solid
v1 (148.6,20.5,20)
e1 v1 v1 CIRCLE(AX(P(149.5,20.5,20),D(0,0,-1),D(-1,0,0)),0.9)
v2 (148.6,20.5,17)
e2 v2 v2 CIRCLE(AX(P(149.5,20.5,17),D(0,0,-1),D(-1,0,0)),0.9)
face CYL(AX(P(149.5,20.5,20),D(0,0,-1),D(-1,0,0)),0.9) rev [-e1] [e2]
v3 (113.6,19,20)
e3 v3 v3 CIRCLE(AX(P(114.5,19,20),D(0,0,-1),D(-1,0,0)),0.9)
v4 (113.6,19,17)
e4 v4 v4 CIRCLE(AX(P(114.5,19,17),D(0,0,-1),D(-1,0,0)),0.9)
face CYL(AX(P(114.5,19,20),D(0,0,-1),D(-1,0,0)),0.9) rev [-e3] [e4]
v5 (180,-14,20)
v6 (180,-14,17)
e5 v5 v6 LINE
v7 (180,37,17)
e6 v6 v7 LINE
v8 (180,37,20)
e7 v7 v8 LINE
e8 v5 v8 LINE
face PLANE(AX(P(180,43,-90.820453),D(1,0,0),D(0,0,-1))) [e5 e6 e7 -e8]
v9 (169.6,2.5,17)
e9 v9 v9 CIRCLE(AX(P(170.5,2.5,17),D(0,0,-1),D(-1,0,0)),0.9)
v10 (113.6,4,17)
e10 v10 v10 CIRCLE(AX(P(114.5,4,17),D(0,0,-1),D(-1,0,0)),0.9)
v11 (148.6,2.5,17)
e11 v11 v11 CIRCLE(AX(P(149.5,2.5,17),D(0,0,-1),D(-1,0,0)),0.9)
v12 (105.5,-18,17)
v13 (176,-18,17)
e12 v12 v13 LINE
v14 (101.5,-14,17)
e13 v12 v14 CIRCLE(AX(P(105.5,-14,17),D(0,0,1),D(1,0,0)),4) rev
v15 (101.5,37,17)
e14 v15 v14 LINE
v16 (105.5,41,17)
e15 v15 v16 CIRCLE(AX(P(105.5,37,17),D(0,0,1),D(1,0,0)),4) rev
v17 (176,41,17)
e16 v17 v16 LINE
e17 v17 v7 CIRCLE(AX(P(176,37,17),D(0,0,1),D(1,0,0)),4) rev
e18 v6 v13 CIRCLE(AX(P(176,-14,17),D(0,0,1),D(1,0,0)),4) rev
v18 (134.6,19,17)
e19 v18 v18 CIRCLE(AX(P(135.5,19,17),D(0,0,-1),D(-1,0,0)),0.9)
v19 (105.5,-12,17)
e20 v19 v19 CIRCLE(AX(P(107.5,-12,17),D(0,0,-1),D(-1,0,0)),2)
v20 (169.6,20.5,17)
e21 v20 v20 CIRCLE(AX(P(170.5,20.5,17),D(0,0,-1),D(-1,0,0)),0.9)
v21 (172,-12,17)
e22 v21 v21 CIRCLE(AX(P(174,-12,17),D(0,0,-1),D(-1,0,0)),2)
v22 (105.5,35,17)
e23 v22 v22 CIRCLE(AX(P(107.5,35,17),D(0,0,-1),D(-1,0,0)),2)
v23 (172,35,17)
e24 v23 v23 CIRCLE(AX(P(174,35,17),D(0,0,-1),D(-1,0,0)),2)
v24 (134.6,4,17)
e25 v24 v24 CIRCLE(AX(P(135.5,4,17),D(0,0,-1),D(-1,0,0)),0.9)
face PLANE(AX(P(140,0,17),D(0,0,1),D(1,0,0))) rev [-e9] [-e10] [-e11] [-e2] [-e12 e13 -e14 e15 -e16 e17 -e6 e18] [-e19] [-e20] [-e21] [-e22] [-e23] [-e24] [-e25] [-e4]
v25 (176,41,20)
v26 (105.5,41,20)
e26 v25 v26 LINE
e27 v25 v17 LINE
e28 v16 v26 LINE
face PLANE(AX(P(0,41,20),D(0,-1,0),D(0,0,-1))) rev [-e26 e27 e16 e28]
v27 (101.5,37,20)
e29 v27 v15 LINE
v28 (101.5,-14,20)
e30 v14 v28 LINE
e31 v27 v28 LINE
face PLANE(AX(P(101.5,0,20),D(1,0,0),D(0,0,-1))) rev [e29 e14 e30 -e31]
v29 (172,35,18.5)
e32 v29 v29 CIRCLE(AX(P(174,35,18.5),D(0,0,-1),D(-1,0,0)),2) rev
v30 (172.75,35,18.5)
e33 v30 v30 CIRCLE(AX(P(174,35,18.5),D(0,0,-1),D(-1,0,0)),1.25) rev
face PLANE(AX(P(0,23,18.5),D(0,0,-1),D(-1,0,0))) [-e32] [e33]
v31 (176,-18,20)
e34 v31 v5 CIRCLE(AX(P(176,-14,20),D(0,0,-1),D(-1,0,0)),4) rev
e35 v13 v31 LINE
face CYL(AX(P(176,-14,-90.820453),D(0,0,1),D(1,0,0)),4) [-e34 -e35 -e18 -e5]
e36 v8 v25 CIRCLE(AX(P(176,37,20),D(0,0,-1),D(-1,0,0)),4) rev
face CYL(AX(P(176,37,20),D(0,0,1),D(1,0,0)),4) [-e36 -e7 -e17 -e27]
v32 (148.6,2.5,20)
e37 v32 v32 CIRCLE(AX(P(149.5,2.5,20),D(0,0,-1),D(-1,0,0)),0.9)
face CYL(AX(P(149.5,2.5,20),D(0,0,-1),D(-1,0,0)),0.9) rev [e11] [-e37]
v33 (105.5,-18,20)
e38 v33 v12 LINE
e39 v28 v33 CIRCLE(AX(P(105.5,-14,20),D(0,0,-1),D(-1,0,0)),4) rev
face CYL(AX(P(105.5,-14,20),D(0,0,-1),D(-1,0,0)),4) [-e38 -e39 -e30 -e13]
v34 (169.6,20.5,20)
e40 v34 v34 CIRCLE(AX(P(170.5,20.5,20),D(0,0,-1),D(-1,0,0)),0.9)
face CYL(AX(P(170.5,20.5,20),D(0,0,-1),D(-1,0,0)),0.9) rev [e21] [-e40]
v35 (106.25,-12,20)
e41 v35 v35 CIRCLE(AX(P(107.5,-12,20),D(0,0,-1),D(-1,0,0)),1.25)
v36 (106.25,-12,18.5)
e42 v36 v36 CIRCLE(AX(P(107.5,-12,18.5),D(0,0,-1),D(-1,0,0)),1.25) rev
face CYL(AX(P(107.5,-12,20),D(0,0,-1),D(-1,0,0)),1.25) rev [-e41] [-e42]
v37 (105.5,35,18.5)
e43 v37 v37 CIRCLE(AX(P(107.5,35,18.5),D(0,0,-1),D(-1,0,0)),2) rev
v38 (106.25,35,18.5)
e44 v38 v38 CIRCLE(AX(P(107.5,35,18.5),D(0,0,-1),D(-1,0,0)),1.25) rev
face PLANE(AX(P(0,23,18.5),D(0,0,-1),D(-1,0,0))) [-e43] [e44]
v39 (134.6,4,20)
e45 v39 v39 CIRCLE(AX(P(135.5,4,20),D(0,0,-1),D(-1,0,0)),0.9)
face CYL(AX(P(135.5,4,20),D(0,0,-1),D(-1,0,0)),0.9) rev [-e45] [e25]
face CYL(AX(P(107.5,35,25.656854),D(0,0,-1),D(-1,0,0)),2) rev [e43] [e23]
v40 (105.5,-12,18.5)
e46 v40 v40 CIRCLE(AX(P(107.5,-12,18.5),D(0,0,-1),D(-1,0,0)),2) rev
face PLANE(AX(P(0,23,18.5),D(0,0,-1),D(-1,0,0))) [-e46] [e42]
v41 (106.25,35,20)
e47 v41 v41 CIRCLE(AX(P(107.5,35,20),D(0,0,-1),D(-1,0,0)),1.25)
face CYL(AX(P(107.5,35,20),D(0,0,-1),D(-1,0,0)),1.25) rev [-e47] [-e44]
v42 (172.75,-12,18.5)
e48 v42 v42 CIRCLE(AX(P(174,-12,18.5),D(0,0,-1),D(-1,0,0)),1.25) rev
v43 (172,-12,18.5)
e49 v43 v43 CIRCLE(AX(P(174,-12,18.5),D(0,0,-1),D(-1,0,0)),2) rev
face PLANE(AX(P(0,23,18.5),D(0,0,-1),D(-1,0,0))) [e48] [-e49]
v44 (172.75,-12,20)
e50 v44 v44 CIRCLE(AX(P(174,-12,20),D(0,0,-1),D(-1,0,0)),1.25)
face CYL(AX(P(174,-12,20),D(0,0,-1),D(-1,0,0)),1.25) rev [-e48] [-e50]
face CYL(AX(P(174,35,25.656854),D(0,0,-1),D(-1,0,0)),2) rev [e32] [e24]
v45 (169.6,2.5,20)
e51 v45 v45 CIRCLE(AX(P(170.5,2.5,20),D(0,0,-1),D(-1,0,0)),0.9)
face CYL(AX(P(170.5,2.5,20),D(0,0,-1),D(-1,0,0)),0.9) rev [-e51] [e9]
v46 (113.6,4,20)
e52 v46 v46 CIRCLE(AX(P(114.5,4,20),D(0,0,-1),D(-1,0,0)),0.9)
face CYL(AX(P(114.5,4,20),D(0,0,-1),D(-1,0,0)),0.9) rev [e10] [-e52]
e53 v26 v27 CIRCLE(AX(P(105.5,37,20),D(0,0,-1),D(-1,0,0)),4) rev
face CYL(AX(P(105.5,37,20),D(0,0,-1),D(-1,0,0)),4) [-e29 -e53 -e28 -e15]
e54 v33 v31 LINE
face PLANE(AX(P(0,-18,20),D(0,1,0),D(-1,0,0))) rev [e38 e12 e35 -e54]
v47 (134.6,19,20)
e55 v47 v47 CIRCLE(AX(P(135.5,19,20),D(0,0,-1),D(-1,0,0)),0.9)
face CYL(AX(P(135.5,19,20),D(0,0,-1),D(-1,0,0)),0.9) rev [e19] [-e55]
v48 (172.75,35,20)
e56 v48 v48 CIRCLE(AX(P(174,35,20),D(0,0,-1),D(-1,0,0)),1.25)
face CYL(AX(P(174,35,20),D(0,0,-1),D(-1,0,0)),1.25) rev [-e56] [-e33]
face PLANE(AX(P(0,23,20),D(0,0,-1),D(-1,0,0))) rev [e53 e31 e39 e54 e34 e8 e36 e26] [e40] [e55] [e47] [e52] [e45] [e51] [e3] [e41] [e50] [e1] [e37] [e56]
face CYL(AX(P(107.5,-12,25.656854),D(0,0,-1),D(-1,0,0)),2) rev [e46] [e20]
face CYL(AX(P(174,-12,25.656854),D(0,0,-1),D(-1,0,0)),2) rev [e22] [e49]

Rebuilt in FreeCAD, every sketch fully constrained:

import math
import FreeCAD as App
import Part
import Sketcher

V = App.Vector
Q = App.Units.Quantity


def edges_at(feature, points):
    """Names of the edges that pass closest to the given points."""
    edges = feature.Shape.Edges
    near = lambda p: min(range(len(edges)), key=lambda i: edges[i].distToShape(Part.Vertex(*p))[0])
    return sorted({f"Edge{near(p) + 1}" for p in points})


def add_polygon(sketch, points):
    """Adds a closed chain of lines whose ends are joined by coincident constraints."""
    first, n = sketch.GeometryCount, len(points)
    for a, b in zip(points, points[1:] + points[:1]):
        sketch.addGeometry(Part.LineSegment(App.Vector(*a, 0), App.Vector(*b, 0)), False)
    for i in range(n):
        sketch.addConstraint(Sketcher.Constraint("Coincident", first + i, 2, first + (i + 1) % n, 1))

doc = App.newDocument("Part")
params = doc.addObject("Spreadsheet::Sheet", "Params")
for row, (alias, value) in enumerate([
    ("sketch1_width", "170 mm"),
    ("sketch1_height", "20 mm"),
    ("pad1_length", "23 mm"),
    ("sketch2_radius", "1.6 mm"),
    ("sketch3_width", "13 mm"),
    ("sketch3_height", "17 mm"),
    ("pocket2_length", "30 mm"),
    ("sketch4_radius", "7.5 mm"),
    ("sketch4_width", "20 mm"),
    ("sketch4_width2", "170 mm"),
    ("sketch4_width3", "15 mm"),
    ("sketch4_height", "7 mm"),
    ("sketch5_height", "63 mm"),
    ("sketch5_width", "87.5 mm"),
    ("pad2_length", "3 mm"),
    ("sketch6_diameter", "2.5 mm"),
    ("sketch7_diameter", "4 mm"),
    ("pocket5_length", "1.5 mm"),
    ("sketch8_height", "2 mm"),
    ("sketch8_height2", "59 mm"),
    ("sketch8_width", "78.5 mm"),
    ("sketch8_width2", "87.5 mm"),
    ("fillet_radius", "4 mm"),
    ("sketch9_diameter", "1.8 mm"),
    ("sketch10_width", "78.5 mm"),
], start=1):
    params.set(f"A{row}", alias)
    params.set(f"B{row}", "=" + value)
    params.setAlias(f"B{row}", alias)

body = doc.addObject("PartDesign::Body", "Body")

sketch1 = doc.addObject("Sketcher::SketchObject", "Sketch")
body.addObject(sketch1)
sketch1.AttachmentSupport = (doc.XZ_Plane, [""])
sketch1.MapMode = "FlatFace"
add_polygon(sketch1, [(0, 0), (0, 20), (170, 20), (170, 0)])
sketch1.addConstraint([
    Sketcher.Constraint("Vertical", 0),
    Sketcher.Constraint("Horizontal", 1),
    Sketcher.Constraint("Vertical", 2),
    Sketcher.Constraint("Horizontal", 3),
    Sketcher.Constraint("Coincident", 3, 2, -1, 1),
    Sketcher.Constraint("DistanceX", 1, 1, 1, 2, Q("170 mm")),
    Sketcher.Constraint("DistanceY", 0, 1, 0, 2, Q("20 mm")),
])
sketch1.setExpression("Constraints[9]", "Params.sketch1_width")
sketch1.setExpression("Constraints[10]", "Params.sketch1_height")
pad1 = doc.addObject("PartDesign::Pad", "Pad")
body.addObject(pad1)
pad1.Profile = sketch1
pad1.setExpression("Length", "Params.pad1_length")
pad1.Reversed = True

sketch2 = doc.addObject("Sketcher::SketchObject", "Sketch001")
body.addObject(sketch2)
sketch2.AttachmentSupport = (doc.XZ_Plane, [""])
sketch2.MapMode = "FlatFace"
sketch2.AttachmentOffset = App.Placement(V(0, 0, -23), App.Rotation())
sketch2.addGeometry([
    Part.ArcOfCircle(Part.Circle(V(160, 10, 0), V(0, 0, 1), 1.6), math.radians(131), math.radians(360)),
    Part.LineSegment(V(158.9, 11.2, 0), V(161.1, 11.2, 0)),
    Part.ArcOfCircle(Part.Circle(V(160, 10, 0), V(0, 0, 1), 1.6), math.radians(0), math.radians(49)),
    Part.ArcOfCircle(Part.Circle(V(125, 10, 0), V(0, 0, 1), 1.6), math.radians(131), math.radians(360)),
    Part.LineSegment(V(123.9, 11.2, 0), V(126.1, 11.2, 0)),
    Part.ArcOfCircle(Part.Circle(V(125, 10, 0), V(0, 0, 1), 1.6), math.radians(0), math.radians(49)),
], False)
sketch2.addConstraint([
    Sketcher.Constraint("Coincident", 0, 1, 1, 1),
    Sketcher.Constraint("Coincident", 1, 2, 2, 2),
    Sketcher.Constraint("Tangent", 2, 1, 0, 2),
    Sketcher.Constraint("Coincident", 3, 1, 4, 1),
    Sketcher.Constraint("Coincident", 4, 2, 5, 2),
    Sketcher.Constraint("Tangent", 5, 1, 3, 2),
    Sketcher.Constraint("Horizontal", 1),
    Sketcher.Constraint("Horizontal", 4),
    Sketcher.Constraint("Equal", 0, 2),
    Sketcher.Constraint("Equal", 2, 3),
    Sketcher.Constraint("Equal", 3, 5),
    Sketcher.Constraint("Horizontal", 2, 3, 3, 3),
    Sketcher.Constraint("Horizontal", 5, 3, 2, 1),
    Sketcher.Constraint("Horizontal", 1, 2, 3, 1),
    Sketcher.Constraint("Horizontal", 2, 1, 5, 1),
    Sketcher.Constraint("Radius", 0, Q("1.6 mm")),
    Sketcher.Constraint("DistanceX", -1, 1, 0, 3, Q("160 mm")),
    Sketcher.Constraint("DistanceY", -1, 1, 0, 3, Q("10 mm")),
    Sketcher.Constraint("DistanceX", -1, 1, 3, 3, Q("125 mm")),
    Sketcher.Constraint("DistanceY", -1, 1, 0, 1, Q("11.2 mm")),
])
sketch2.setExpression("Constraints[15]", "Params.sketch2_radius")
pocket1 = doc.addObject("PartDesign::Pocket", "Pocket")
body.addObject(pocket1)
pocket1.Profile = sketch2
pocket1.Type = "ThroughAll"
pocket1.Reversed = True

sketch3 = doc.addObject("Sketcher::SketchObject", "Sketch002")
body.addObject(sketch3)
sketch3.AttachmentSupport = (doc.YZ_Plane, [""])
sketch3.MapMode = "FlatFace"
sketch3.AttachmentOffset = App.Placement(V(0, 0, 170), App.Rotation())
add_polygon(sketch3, [(18, 17), (5, 17), (5, 0), (18, 0)])
sketch3.addConstraint([
    Sketcher.Constraint("Horizontal", 0),
    Sketcher.Constraint("Vertical", 1),
    Sketcher.Constraint("Horizontal", 2),
    Sketcher.Constraint("Vertical", 3),
    Sketcher.Constraint("PointOnObject", 1, 2, -1),
    Sketcher.Constraint("DistanceX", 0, 2, 0, 1, Q("13 mm")),
    Sketcher.Constraint("DistanceY", 1, 2, 1, 1, Q("17 mm")),
    Sketcher.Constraint("DistanceX", -1, 1, 0, 2, Q("5 mm")),
])
sketch3.setExpression("Constraints[9]", "Params.sketch3_width")
sketch3.setExpression("Constraints[10]", "Params.sketch3_height")
pocket2 = doc.addObject("PartDesign::Pocket", "Pocket001")
body.addObject(pocket2)
pocket2.Profile = sketch3
pocket2.setExpression("Length", "Params.pocket2_length")

sketch4 = doc.addObject("Sketcher::SketchObject", "Sketch003")
body.addObject(sketch4)
sketch4.AttachmentSupport = (doc.XZ_Plane, [""])
sketch4.MapMode = "FlatFace"
sketch4.AttachmentOffset = App.Placement(V(0, 0, -23), App.Rotation())
sketch4.addGeometry([
    Part.LineSegment(V(117.5, 17, 0), V(117.5, 10, 0)),
    Part.ArcOfCircle(Part.Circle(V(125, 10, 0), V(0, 0, 1), 7.5), math.radians(180), math.radians(360)),
    Part.LineSegment(V(132.5, 10, 0), V(132.5, 17, 0)),
    Part.LineSegment(V(132.5, 17, 0), V(152.5, 17, 0)),
    Part.LineSegment(V(152.5, 17, 0), V(152.5, 10, 0)),
    Part.ArcOfCircle(Part.Circle(V(160, 10, 0), V(0, 0, 1), 7.5), math.radians(180), math.radians(360)),
    Part.LineSegment(V(167.5, 10, 0), V(167.5, 17, 0)),
    Part.LineSegment(V(167.5, 17, 0), V(170, 17, 0)),
    Part.LineSegment(V(170, 17, 0), V(170, 0, 0)),
    Part.LineSegment(V(170, 0, 0), V(0, 0, 0)),
    Part.LineSegment(V(0, 0, 0), V(0, 20, 0)),
    Part.LineSegment(V(0, 20, 0), V(102.5, 20, 0)),
    Part.LineSegment(V(102.5, 20, 0), V(102.5, 17, 0)),
    Part.LineSegment(V(102.5, 17, 0), V(117.5, 17, 0)),
], False)
sketch4.addConstraint([
    Sketcher.Constraint("Tangent", 0, 2, 1, 1),
    Sketcher.Constraint("Tangent", 1, 2, 2, 1),
    Sketcher.Constraint("Coincident", 2, 2, 3, 1),
    Sketcher.Constraint("Coincident", 3, 2, 4, 1),
    Sketcher.Constraint("Tangent", 4, 2, 5, 1),
    Sketcher.Constraint("Tangent", 5, 2, 6, 1),
    Sketcher.Constraint("Coincident", 6, 2, 7, 1),
    Sketcher.Constraint("Coincident", 7, 2, 8, 1),
    Sketcher.Constraint("Coincident", 8, 2, 9, 1),
    Sketcher.Constraint("Coincident", 9, 2, 10, 1),
    Sketcher.Constraint("Coincident", 10, 2, 11, 1),
    Sketcher.Constraint("Coincident", 11, 2, 12, 1),
    Sketcher.Constraint("Coincident", 12, 2, 13, 1),
    Sketcher.Constraint("Coincident", 13, 2, 0, 1),
    Sketcher.Constraint("Vertical", 0),
    Sketcher.Constraint("Vertical", 2),
    Sketcher.Constraint("Horizontal", 3),
    Sketcher.Constraint("Vertical", 4),
    Sketcher.Constraint("Vertical", 6),
    Sketcher.Constraint("Horizontal", 7),
    Sketcher.Constraint("Vertical", 8),
    Sketcher.Constraint("Horizontal", 9),
    Sketcher.Constraint("Vertical", 10),
    Sketcher.Constraint("Horizontal", 11),
    Sketcher.Constraint("Vertical", 12),
    Sketcher.Constraint("Horizontal", 13),
    Sketcher.Constraint("Coincident", 9, 2, -1, 1),
    Sketcher.Constraint("Equal", 1, 5),
    Sketcher.Constraint("Horizontal", 1, 3, 5, 3),
    Sketcher.Constraint("Horizontal", 3, 2, 6, 2),
    Sketcher.Constraint("Horizontal", 7, 2, 12, 2),
    Sketcher.Constraint("Equal", 3, 10),
    Sketcher.Constraint("Radius", 1, Q("7.5 mm")),
    Sketcher.Constraint("DistanceX", 3, 1, 3, 2, Q("20 mm")),
    Sketcher.Constraint("DistanceX", 9, 2, 9, 1, Q("170 mm")),
    Sketcher.Constraint("DistanceX", 13, 1, 13, 2, Q("15 mm")),
    Sketcher.Constraint("DistanceY", 0, 2, 0, 1, Q("7 mm")),
    Sketcher.Constraint("DistanceY", 8, 2, 8, 1, Q("17 mm")),
    Sketcher.Constraint("DistanceX", 7, 1, 7, 2, Q("2.5 mm")),
])
sketch4.setExpression("Constraints[32]", "Params.sketch4_radius")
sketch4.setExpression("Constraints[33]", "Params.sketch4_width")
sketch4.setExpression("Constraints[34]", "Params.sketch4_width2")
sketch4.setExpression("Constraints[35]", "Params.sketch4_width3")
sketch4.setExpression("Constraints[36]", "Params.sketch4_height")
pocket3 = doc.addObject("PartDesign::Pocket", "Pocket002")
body.addObject(pocket3)
pocket3.Profile = sketch4
pocket3.Type = "ThroughAll"
pocket3.Reversed = True

sketch5 = doc.addObject("Sketcher::SketchObject", "Sketch004")
body.addObject(sketch5)
sketch5.AttachmentSupport = (doc.XY_Plane, [""])
sketch5.MapMode = "FlatFace"
sketch5.AttachmentOffset = App.Placement(V(0, 0, 20), App.Rotation())
add_polygon(sketch5, [(92, 43), (92, -20), (180, -20), (180, 43)])
sketch5.addConstraint([
    Sketcher.Constraint("Vertical", 0),
    Sketcher.Constraint("Horizontal", 1),
    Sketcher.Constraint("Vertical", 2),
    Sketcher.Constraint("Horizontal", 3),
    Sketcher.Constraint("DistanceY", 0, 2, 0, 1, Q("63 mm")),
    Sketcher.Constraint("DistanceX", 1, 1, 1, 2, Q("87.5 mm")),
    Sketcher.Constraint("DistanceY", 0, 2, -1, 1, Q("20 mm")),
    Sketcher.Constraint("DistanceX", -1, 1, 1, 2, Q("180 mm")),
])
sketch5.setExpression("Constraints[8]", "Params.sketch5_height")
sketch5.setExpression("Constraints[9]", "Params.sketch5_width")
pad2 = doc.addObject("PartDesign::Pad", "Pad001")
body.addObject(pad2)
pad2.Profile = sketch5
pad2.setExpression("Length", "Params.pad2_length")
pad2.Reversed = True

sketch6 = doc.addObject("Sketcher::SketchObject", "Sketch005")
body.addObject(sketch6)
sketch6.AttachmentSupport = (doc.XY_Plane, [""])
sketch6.MapMode = "FlatFace"
sketch6.AttachmentOffset = App.Placement(V(0, 0, 17), App.Rotation())
sketch6.addGeometry([
    Part.Circle(V(174, 35, 0), V(0, 0, 1), 1.2),
    Part.Circle(V(107.5, 35, 0), V(0, 0, 1), 1.2),
    Part.Circle(V(107.5, -12, 0), V(0, 0, 1), 1.2),
    Part.Circle(V(174, -12, 0), V(0, 0, 1), 1.2),
], False)
sketch6.addConstraint([
    Sketcher.Constraint("Equal", 0, 1),
    Sketcher.Constraint("Equal", 1, 2),
    Sketcher.Constraint("Equal", 2, 3),
    Sketcher.Constraint("Horizontal", 0, 3, 1, 3),
    Sketcher.Constraint("Horizontal", 2, 3, 3, 3),
    Sketcher.Constraint("Vertical", 1, 3, 2, 3),
    Sketcher.Constraint("Vertical", 0, 3, 3, 3),
    Sketcher.Constraint("Diameter", 0, Q("2.5 mm")),
    Sketcher.Constraint("DistanceX", -1, 1, 0, 3, Q("174 mm")),
    Sketcher.Constraint("DistanceY", -1, 1, 0, 3, Q("35 mm")),
    Sketcher.Constraint("DistanceY", 2, 3, -1, 1, Q("12 mm")),
    Sketcher.Constraint("DistanceX", -1, 1, 1, 3, Q("107.5 mm")),
])
sketch6.setExpression("Constraints[7]", "Params.sketch6_diameter")
pocket4 = doc.addObject("PartDesign::Pocket", "Pocket003")
body.addObject(pocket4)
pocket4.Profile = sketch6
pocket4.Type = "ThroughAll"
pocket4.Reversed = True

sketch7 = doc.addObject("Sketcher::SketchObject", "Sketch006")
body.addObject(sketch7)
sketch7.AttachmentSupport = (doc.XY_Plane, [""])
sketch7.MapMode = "FlatFace"
sketch7.AttachmentOffset = App.Placement(V(0, 0, 17), App.Rotation())
sketch7.addGeometry([
    Part.Circle(V(174, 35, 0), V(0, 0, 1), 2),
    Part.Circle(V(107.5, 35, 0), V(0, 0, 1), 2),
    Part.Circle(V(174, -12, 0), V(0, 0, 1), 2),
    Part.Circle(V(107.5, -12, 0), V(0, 0, 1), 2),
], False)
sketch7.addConstraint([
    Sketcher.Constraint("Equal", 0, 1),
    Sketcher.Constraint("Equal", 1, 2),
    Sketcher.Constraint("Equal", 2, 3),
    Sketcher.Constraint("Horizontal", 0, 3, 1, 3),
    Sketcher.Constraint("Horizontal", 2, 3, 3, 3),
    Sketcher.Constraint("Vertical", 0, 3, 2, 3),
    Sketcher.Constraint("Vertical", 1, 3, 3, 3),
    Sketcher.Constraint("Diameter", 0, Q("4 mm")),
    Sketcher.Constraint("DistanceX", -1, 1, 0, 3, Q("174 mm")),
    Sketcher.Constraint("DistanceY", -1, 1, 0, 3, Q("35 mm")),
    Sketcher.Constraint("DistanceY", 2, 3, -1, 1, Q("12 mm")),
    Sketcher.Constraint("DistanceX", -1, 1, 1, 3, Q("107.5 mm")),
])
sketch7.setExpression("Constraints[7]", "Params.sketch7_diameter")
pocket5 = doc.addObject("PartDesign::Pocket", "Pocket004")
body.addObject(pocket5)
pocket5.Profile = sketch7
pocket5.setExpression("Length", "Params.pocket5_length")
pocket5.Reversed = True

sketch8 = doc.addObject("Sketcher::SketchObject", "Sketch007")
body.addObject(sketch8)
sketch8.AttachmentSupport = (doc.XY_Plane, [""])
sketch8.MapMode = "FlatFace"
sketch8.AttachmentOffset = App.Placement(V(0, 0, 17), App.Rotation())
add_polygon(sketch8, [(180, 43), (180, 41), (101.5, 41), (101.5, -18), (180, -18), (180, -20), (92.5, -20), (92.5, 43)])
sketch8.addConstraint([
    Sketcher.Constraint("Vertical", 0),
    Sketcher.Constraint("Horizontal", 1),
    Sketcher.Constraint("Vertical", 2),
    Sketcher.Constraint("Horizontal", 3),
    Sketcher.Constraint("Vertical", 4),
    Sketcher.Constraint("Horizontal", 5),
    Sketcher.Constraint("Vertical", 6),
    Sketcher.Constraint("Horizontal", 7),
    Sketcher.Constraint("Vertical", 0, 2, 3, 2),
    Sketcher.Constraint("Equal", 0, 4),
    Sketcher.Constraint("DistanceY", 0, 2, 0, 1, Q("2 mm")),
    Sketcher.Constraint("DistanceY", 2, 2, 2, 1, Q("59 mm")),
    Sketcher.Constraint("DistanceX", 1, 2, 1, 1, Q("78.5 mm")),
    Sketcher.Constraint("DistanceX", 5, 2, 5, 1, Q("87.5 mm")),
    Sketcher.Constraint("DistanceX", -1, 1, 0, 2, Q("180 mm")),
    Sketcher.Constraint("DistanceY", -1, 1, 0, 2, Q("41 mm")),
])
sketch8.setExpression("Constraints[18]", "Params.sketch8_height")
sketch8.setExpression("Constraints[19]", "Params.sketch8_height2")
sketch8.setExpression("Constraints[20]", "Params.sketch8_width")
sketch8.setExpression("Constraints[21]", "Params.sketch8_width2")
pocket6 = doc.addObject("PartDesign::Pocket", "Pocket005")
body.addObject(pocket6)
pocket6.Profile = sketch8
pocket6.Type = "ThroughAll"
pocket6.Reversed = True
doc.recompute()

fillet = doc.addObject("PartDesign::Fillet", "Fillet")
body.addObject(fillet)
fillet.Base = (pocket6, edges_at(pocket6, [
    (101.5, -18, 18.5),
    (101.5, 41, 18.5),
    (180, 41, 18.5),
    (180, -18, 18.5),
]))
fillet.setExpression("Radius", "Params.fillet_radius")

sketch9 = doc.addObject("Sketcher::SketchObject", "Sketch008")
body.addObject(sketch9)
sketch9.AttachmentSupport = (doc.XY_Plane, [""])
sketch9.MapMode = "FlatFace"
sketch9.AttachmentOffset = App.Placement(V(0, 0, 17), App.Rotation())
sketch9.addGeometry([
    Part.Circle(V(170.5, 20.5, 0), V(0, 0, 1), 0.9),
    Part.Circle(V(149.5, 20.5, 0), V(0, 0, 1), 0.9),
    Part.Circle(V(170.5, 2.5, 0), V(0, 0, 1), 0.9),
    Part.Circle(V(149.5, 2.5, 0), V(0, 0, 1), 0.9),
    Part.Circle(V(135.5, 4, 0), V(0, 0, 1), 0.9),
    Part.Circle(V(135.5, 19, 0), V(0, 0, 1), 0.9),
    Part.Circle(V(114.5, 19, 0), V(0, 0, 1), 0.9),
    Part.Circle(V(114.5, 4, 0), V(0, 0, 1), 0.9),
], False)
sketch9.addConstraint([
    Sketcher.Constraint("Equal", 0, 1),
    Sketcher.Constraint("Equal", 1, 2),
    Sketcher.Constraint("Equal", 2, 3),
    Sketcher.Constraint("Equal", 3, 4),
    Sketcher.Constraint("Equal", 4, 5),
    Sketcher.Constraint("Equal", 5, 6),
    Sketcher.Constraint("Equal", 6, 7),
    Sketcher.Constraint("Horizontal", 0, 3, 1, 3),
    Sketcher.Constraint("Horizontal", 2, 3, 3, 3),
    Sketcher.Constraint("Horizontal", 5, 3, 6, 3),
    Sketcher.Constraint("Horizontal", 4, 3, 7, 3),
    Sketcher.Constraint("Vertical", 0, 3, 2, 3),
    Sketcher.Constraint("Vertical", 1, 3, 3, 3),
    Sketcher.Constraint("Vertical", 4, 3, 5, 3),
    Sketcher.Constraint("Vertical", 6, 3, 7, 3),
    Sketcher.Constraint("Diameter", 0, Q("1.8 mm")),
    Sketcher.Constraint("DistanceY", -1, 1, 4, 3, Q("4 mm")),
    Sketcher.Constraint("DistanceY", -1, 1, 5, 3, Q("19 mm")),
    Sketcher.Constraint("DistanceX", 1, 3, 0, 3, Q("21 mm")),
    Sketcher.Constraint("DistanceY", 2, 3, 0, 3, Q("18 mm")),
    Sketcher.Constraint("DistanceX", 4, 3, 3, 3, Q("14 mm")),
    Sketcher.Constraint("DistanceX", 6, 3, 5, 3, Q("21 mm")),
    Sketcher.Constraint("DistanceX", -1, 1, 0, 3, Q("170.5 mm")),
    Sketcher.Constraint("DistanceY", -1, 1, 0, 3, Q("20.5 mm")),
])
sketch9.setExpression("Constraints[15]", "Params.sketch9_diameter")
pocket7 = doc.addObject("PartDesign::Pocket", "Pocket006")
body.addObject(pocket7)
pocket7.Profile = sketch9
pocket7.Type = "ThroughAll"
pocket7.Reversed = True

sketch10 = doc.addObject("Sketcher::SketchObject", "Sketch009")
body.addObject(sketch10)
sketch10.AttachmentSupport = (doc.XZ_Plane, [""])
sketch10.MapMode = "FlatFace"
sketch10.AttachmentOffset = App.Placement(V(0, 0, 18), App.Rotation())
add_polygon(sketch10, [(102, 17), (102, 1), (180, 1), (180, 17)])
sketch10.addConstraint([
    Sketcher.Constraint("Vertical", 0),
    Sketcher.Constraint("Horizontal", 1),
    Sketcher.Constraint("Vertical", 2),
    Sketcher.Constraint("Horizontal", 3),
    Sketcher.Constraint("DistanceX", 1, 1, 1, 2, Q("78.5 mm")),
    Sketcher.Constraint("DistanceX", -1, 1, 1, 2, Q("180 mm")),
    Sketcher.Constraint("DistanceY", -1, 1, 2, 2, Q("17 mm")),
    Sketcher.Constraint("DistanceY", 0, 2, 0, 1, Q("16.208535 mm")),
])
sketch10.setExpression("Constraints[8]", "Params.sketch10_width")
pocket8 = doc.addObject("PartDesign::Pocket", "Pocket007")
body.addObject(pocket8)
pocket8.Profile = sketch10
pocket8.Type = "ThroughAll"

doc.recompute()
